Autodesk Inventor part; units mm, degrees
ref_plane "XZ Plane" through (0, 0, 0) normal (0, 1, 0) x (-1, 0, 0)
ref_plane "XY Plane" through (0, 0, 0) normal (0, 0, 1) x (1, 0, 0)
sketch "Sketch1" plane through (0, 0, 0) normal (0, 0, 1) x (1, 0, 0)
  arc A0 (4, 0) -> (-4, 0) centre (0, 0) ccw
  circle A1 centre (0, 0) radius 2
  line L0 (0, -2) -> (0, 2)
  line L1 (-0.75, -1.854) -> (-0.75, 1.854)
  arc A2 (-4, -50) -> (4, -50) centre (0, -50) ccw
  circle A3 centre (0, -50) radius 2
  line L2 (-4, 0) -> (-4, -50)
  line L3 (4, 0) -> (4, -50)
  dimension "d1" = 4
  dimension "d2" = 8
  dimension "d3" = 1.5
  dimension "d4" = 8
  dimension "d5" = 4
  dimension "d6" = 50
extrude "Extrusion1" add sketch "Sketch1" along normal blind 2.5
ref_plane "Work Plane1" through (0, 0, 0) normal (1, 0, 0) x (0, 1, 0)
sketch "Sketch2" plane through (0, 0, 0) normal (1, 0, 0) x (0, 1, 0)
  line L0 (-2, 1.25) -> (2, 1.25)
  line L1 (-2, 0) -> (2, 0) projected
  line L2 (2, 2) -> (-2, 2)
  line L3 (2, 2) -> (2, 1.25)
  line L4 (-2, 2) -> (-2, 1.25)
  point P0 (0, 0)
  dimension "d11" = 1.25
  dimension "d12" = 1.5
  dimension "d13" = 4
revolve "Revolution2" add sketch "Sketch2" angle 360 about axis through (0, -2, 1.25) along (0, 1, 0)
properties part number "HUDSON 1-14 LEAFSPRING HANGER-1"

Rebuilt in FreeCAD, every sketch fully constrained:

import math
import FreeCAD as App
import Part
import Sketcher
from FreeCAD import Vector
Q = App.Units.Quantity

doc = App.newDocument("Part")
params = doc.addObject("Spreadsheet::Sheet", "Params")
for row, (alias, value) in enumerate([
    ("sketch1_diameter", "4 mm"),
    ("sketch1_radius", "4 mm"),
    ("sketch1_height", "50 mm"),
    ("pad1_length", "2.5 mm"),
    ("sketch2_width", "4 mm"),
    ("revolution_angle", "360 deg"),
], start=1):
    params.set(f"A{row}", alias)
    params.set(f"B{row}", "=" + value)
    params.setAlias(f"B{row}", alias)

body = doc.addObject("PartDesign::Body", "Body")

sketch1 = body.newObject("Sketcher::SketchObject", "Sketch")
sketch1.AttachmentSupport = (doc.getObject("XY_Plane"), [""])
sketch1.MapMode = "FlatFace"
sketch1.addGeometry(Part.LineSegment(Vector(4, -50, 0), Vector(4, 0, 0)), False)
sketch1.addGeometry(Part.ArcOfCircle(Part.Circle(Vector(0, 0, 0), Vector(0, 0, 1), 4), math.radians(0), math.radians(180)), False)
sketch1.addGeometry(Part.LineSegment(Vector(-4, 0, 0), Vector(-4, -50, 0)), False)
sketch1.addGeometry(Part.ArcOfCircle(Part.Circle(Vector(0, -50, 0), Vector(0, 0, 1), 4), math.radians(180), math.radians(360)), False)
sketch1.addGeometry(Part.Circle(Vector(0, -50, 0), Vector(0, 0, 1), 2), False)
sketch1.addGeometry(Part.Circle(Vector(0, 0, 0), Vector(0, 0, 1), 2), False)
sketch1.addConstraint(Sketcher.Constraint("Tangent", 0, 2, 1, 1))
sketch1.addConstraint(Sketcher.Constraint("Tangent", 1, 2, 2, 1))
sketch1.addConstraint(Sketcher.Constraint("Tangent", 2, 2, 3, 1))
sketch1.addConstraint(Sketcher.Constraint("Tangent", 3, 2, 0, 1))
sketch1.addConstraint(Sketcher.Constraint("Vertical", 0))
sketch1.addConstraint(Sketcher.Constraint("Vertical", 2))
sketch1.addConstraint(Sketcher.Constraint("Coincident", 1, 3, -1, 1))
sketch1.addConstraint(Sketcher.Constraint("Coincident", 5, 3, -1, 1))
sketch1.addConstraint(Sketcher.Constraint("Coincident", 4, 3, 3, 3))
sketch1.addConstraint(Sketcher.Constraint("Equal", 4, 5))
sketch1.addConstraint(Sketcher.Constraint("Diameter", 4, Q("4 mm")))
sketch1.addConstraint(Sketcher.Constraint("Radius", 1, Q("4 mm")))
sketch1.addConstraint(Sketcher.Constraint("DistanceY", 0, 1, 0, 2, Q("50 mm")))
sketch1.setExpression("Constraints[10]", "Params.sketch1_diameter")
sketch1.setExpression("Constraints[11]", "Params.sketch1_radius")
sketch1.setExpression("Constraints[12]", "Params.sketch1_height")
pad1 = body.newObject("PartDesign::Pad", "Pad")
pad1.Profile = sketch1
pad1.setExpression("Length", "Params.pad1_length")

sketch2 = body.newObject("Sketcher::SketchObject", "Sketch001")
sketch2.AttachmentSupport = (doc.getObject("YZ_Plane"), [""])
sketch2.MapMode = "FlatFace"
sketch2.addGeometry(Part.LineSegment(Vector(-2, 2, 0), Vector(-2, 1.2, 0)), False)
sketch2.addGeometry(Part.LineSegment(Vector(-2, 1.2, 0), Vector(2, 1.2, 0)), False)
sketch2.addGeometry(Part.LineSegment(Vector(2, 1.2, 0), Vector(2, 2, 0)), False)
sketch2.addGeometry(Part.LineSegment(Vector(2, 2, 0), Vector(-2, 2, 0)), False)
sketch2.addGeometry(Part.LineSegment(Vector(-2, 1.2, 0), Vector(2, 1.2, 0)), True)
sketch2.addConstraint(Sketcher.Constraint("Coincident", 0, 2, 1, 1))
sketch2.addConstraint(Sketcher.Constraint("Coincident", 1, 2, 2, 1))
sketch2.addConstraint(Sketcher.Constraint("Coincident", 2, 2, 3, 1))
sketch2.addConstraint(Sketcher.Constraint("Coincident", 3, 2, 0, 1))
sketch2.addConstraint(Sketcher.Constraint("Vertical", 0))
sketch2.addConstraint(Sketcher.Constraint("Horizontal", 1))
sketch2.addConstraint(Sketcher.Constraint("Vertical", 2))
sketch2.addConstraint(Sketcher.Constraint("Horizontal", 3))
sketch2.addConstraint(Sketcher.Constraint("Horizontal", 4))
sketch2.addConstraint(Sketcher.Constraint("Coincident", 4, 1, 0, 2))
sketch2.addConstraint(Sketcher.Constraint("Vertical", 2, 2, 4, 2))
sketch2.addConstraint(Sketcher.Constraint("DistanceX", 1, 1, 1, 2, Q("4 mm")))
sketch2.addConstraint(Sketcher.Constraint("DistanceY", -1, 1, 0, 2, Q("1.25 mm")))
sketch2.addConstraint(Sketcher.Constraint("DistanceX", 0, 2, -1, 1, Q("2 mm")))
sketch2.addConstraint(Sketcher.Constraint("DistanceY", -1, 1, 2, 2, Q("2 mm")))
sketch2.setExpression("Constraints[11]", "Params.sketch2_width")
revolution = body.newObject("PartDesign::Revolution", "Revolution")
revolution.Profile = sketch2
revolution.ReferenceAxis = (sketch2, ["Axis0"])
revolution.setExpression("Angle", "Params.revolution_angle")

doc.recompute()
